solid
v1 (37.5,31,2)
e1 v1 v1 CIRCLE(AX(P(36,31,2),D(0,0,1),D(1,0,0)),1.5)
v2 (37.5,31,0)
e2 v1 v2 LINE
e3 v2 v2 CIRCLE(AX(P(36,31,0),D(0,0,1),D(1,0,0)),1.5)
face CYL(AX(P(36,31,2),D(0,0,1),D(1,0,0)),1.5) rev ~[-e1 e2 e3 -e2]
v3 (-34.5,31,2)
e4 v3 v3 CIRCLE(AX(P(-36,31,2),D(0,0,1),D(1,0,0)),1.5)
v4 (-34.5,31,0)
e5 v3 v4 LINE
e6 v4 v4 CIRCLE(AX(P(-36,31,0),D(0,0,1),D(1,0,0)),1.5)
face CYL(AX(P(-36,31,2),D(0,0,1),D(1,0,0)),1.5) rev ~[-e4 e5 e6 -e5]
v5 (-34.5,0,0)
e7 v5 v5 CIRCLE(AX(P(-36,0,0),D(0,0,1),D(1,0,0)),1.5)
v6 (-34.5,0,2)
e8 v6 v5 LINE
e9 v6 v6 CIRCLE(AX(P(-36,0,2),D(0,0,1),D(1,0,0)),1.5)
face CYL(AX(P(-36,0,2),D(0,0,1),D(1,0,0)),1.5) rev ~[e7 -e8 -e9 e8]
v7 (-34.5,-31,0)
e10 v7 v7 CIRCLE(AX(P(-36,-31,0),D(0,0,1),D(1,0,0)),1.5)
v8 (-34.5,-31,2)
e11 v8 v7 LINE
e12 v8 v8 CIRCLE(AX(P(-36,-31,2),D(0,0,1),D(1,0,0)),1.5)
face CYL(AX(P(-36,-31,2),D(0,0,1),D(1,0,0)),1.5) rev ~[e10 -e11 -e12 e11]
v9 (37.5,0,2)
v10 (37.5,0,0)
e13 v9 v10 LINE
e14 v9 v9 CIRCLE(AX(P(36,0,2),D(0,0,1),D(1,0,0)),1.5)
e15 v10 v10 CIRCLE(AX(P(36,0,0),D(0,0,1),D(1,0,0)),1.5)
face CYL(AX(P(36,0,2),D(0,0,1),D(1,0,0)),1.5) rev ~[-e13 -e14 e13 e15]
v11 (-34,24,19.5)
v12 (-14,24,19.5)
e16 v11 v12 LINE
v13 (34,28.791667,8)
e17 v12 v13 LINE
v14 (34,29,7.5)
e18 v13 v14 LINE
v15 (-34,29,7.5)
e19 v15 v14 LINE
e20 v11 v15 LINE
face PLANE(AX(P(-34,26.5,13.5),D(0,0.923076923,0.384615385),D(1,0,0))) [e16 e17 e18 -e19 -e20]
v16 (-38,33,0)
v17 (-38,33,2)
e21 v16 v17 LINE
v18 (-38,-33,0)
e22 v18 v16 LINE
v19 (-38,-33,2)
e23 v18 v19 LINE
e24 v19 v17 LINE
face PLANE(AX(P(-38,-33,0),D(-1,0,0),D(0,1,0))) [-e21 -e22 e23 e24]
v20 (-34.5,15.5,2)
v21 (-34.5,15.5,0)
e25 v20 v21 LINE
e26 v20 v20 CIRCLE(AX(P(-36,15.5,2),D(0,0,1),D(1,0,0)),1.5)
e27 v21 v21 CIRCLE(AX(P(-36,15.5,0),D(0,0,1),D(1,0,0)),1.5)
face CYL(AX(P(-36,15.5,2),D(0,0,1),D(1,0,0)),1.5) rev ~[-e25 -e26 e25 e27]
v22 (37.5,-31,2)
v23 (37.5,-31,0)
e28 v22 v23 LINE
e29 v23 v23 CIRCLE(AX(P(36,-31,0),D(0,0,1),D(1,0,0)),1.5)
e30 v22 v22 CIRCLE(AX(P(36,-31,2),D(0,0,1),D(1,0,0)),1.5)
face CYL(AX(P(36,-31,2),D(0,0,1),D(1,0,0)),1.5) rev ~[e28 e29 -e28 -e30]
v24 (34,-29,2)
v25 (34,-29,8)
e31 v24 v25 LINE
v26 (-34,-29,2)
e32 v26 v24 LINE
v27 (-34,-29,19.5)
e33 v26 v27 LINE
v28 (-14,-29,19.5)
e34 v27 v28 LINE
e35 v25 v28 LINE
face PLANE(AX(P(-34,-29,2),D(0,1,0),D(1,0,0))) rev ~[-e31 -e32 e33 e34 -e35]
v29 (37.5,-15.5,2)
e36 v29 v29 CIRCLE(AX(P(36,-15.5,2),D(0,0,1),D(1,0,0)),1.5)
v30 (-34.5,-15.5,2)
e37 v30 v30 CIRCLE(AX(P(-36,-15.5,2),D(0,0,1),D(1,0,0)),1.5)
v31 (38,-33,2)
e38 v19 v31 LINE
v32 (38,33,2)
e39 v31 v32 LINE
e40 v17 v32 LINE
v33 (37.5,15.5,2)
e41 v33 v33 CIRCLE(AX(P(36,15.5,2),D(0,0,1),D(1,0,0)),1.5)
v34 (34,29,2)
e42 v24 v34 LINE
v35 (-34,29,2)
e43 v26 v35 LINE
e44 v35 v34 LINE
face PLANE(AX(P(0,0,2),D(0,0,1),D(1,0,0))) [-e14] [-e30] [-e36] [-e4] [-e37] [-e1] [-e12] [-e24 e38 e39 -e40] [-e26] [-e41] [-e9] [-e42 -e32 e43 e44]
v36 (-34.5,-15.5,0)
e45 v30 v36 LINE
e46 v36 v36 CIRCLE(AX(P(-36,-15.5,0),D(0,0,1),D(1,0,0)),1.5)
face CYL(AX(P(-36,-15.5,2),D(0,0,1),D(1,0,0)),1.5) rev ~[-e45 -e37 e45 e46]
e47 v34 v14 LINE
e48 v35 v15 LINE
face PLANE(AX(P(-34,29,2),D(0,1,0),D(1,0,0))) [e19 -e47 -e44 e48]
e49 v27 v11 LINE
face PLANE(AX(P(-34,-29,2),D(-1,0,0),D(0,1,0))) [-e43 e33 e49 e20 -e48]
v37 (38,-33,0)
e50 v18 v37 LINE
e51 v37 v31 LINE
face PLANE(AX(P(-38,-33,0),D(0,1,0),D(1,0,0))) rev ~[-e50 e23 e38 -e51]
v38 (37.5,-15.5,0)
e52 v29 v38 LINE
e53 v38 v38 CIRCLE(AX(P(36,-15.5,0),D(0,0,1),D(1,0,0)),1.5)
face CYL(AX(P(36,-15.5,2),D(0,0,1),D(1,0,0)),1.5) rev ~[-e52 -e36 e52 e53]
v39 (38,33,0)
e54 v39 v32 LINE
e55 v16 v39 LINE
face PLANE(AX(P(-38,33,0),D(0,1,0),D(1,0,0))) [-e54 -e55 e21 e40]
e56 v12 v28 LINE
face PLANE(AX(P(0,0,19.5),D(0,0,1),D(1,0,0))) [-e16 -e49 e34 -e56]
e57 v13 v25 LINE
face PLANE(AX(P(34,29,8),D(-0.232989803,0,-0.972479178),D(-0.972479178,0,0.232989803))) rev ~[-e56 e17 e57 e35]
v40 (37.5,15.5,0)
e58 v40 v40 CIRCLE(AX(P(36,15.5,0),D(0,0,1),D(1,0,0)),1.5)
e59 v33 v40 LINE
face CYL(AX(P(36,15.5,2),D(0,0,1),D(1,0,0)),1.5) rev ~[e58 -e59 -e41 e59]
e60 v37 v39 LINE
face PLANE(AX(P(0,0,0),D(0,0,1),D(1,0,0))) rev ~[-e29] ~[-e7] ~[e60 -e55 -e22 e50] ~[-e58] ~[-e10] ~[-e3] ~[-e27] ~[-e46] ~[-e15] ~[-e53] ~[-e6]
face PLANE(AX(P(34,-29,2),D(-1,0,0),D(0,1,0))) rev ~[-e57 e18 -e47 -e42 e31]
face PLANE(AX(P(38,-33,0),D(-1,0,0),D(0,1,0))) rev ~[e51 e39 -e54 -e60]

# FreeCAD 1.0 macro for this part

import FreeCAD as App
import Part
import Sketcher

V = App.Vector


def edges_at(feature, points):
    """Names of the edges that pass closest to the given points."""
    edges = feature.Shape.Edges
    near = lambda p: min(range(len(edges)), key=lambda i: edges[i].distToShape(Part.Vertex(*p))[0])
    return sorted({f"Edge{near(p) + 1}" for p in points})


def add_polygon(sketch, points):
    """Adds a closed chain of lines whose ends are joined by coincident constraints."""
    first, n = sketch.GeometryCount, len(points)
    for a, b in zip(points, points[1:] + points[:1]):
        sketch.addGeometry(Part.LineSegment(App.Vector(*a, 0), App.Vector(*b, 0)), False)
    for i in range(n):
        sketch.addConstraint(Sketcher.Constraint("Coincident", first + i, 2, first + (i + 1) % n, 1))

doc = App.newDocument("Part")
body = doc.addObject("PartDesign::Body", "Body")

# Sketch on XY plane
sketch1 = body.newObject("Sketcher::SketchObject", "Sketch")
sketch1.AttachmentSupport = (doc.getObject("XY_Plane"), [""])
sketch1.MapMode = "FlatFace"
add_polygon(sketch1, [(-38, 33), (-38, -33), (38, -33), (38, 33)])  # lines 0-3
sketch1.addConstraint([
    Sketcher.Constraint("Vertical", 0),
    Sketcher.Constraint("Horizontal", 1),
    Sketcher.Constraint("Vertical", 2),
    Sketcher.Constraint("Horizontal", 3),
    Sketcher.Constraint("Symmetric", 0, 2, 2, 2, -1, 1),
    Sketcher.Constraint("DistanceX", 1, 1, 1, 2, 76.0),
    Sketcher.Constraint("DistanceY", 0, 2, 0, 1, 66.0),
])
pad1 = body.newObject("PartDesign::Pad", "Pad")
pad1.Profile = sketch1
pad1.Length = 2

# Sketch on XY plane
sketch2 = body.newObject("Sketcher::SketchObject", "Sketch001")
sketch2.AttachmentSupport = (doc.getObject("XY_Plane"), [""])
sketch2.MapMode = "FlatFace"
sketch2.AttachmentOffset = App.Placement(V(0, 0, 2), App.Rotation())
add_polygon(sketch2, [(-34, 29), (-34, -29), (34, -29), (34, 29)])  # lines 0-3
sketch2.addConstraint([
    Sketcher.Constraint("Vertical", 0),
    Sketcher.Constraint("Horizontal", 1),
    Sketcher.Constraint("Vertical", 2),
    Sketcher.Constraint("Horizontal", 3),
    Sketcher.Constraint("Symmetric", 0, 2, 2, 2, -1, 1),
    Sketcher.Constraint("DistanceX", 1, 1, 1, 2, 68.0),
    Sketcher.Constraint("DistanceY", 0, 2, 0, 1, 58.0),
])
pad2 = body.newObject("PartDesign::Pad", "Pad001")
pad2.Profile = sketch2
pad2.Length = 17.5

# Sketch on XZ plane
sketch3 = body.newObject("Sketcher::SketchObject", "Sketch002")
sketch3.AttachmentSupport = (doc.getObject("XZ_Plane"), [""])
sketch3.MapMode = "FlatFace"
sketch3.AttachmentOffset = App.Placement(V(0, 0, -29), App.Rotation())
add_polygon(sketch3, [(-14, 20), (34, 20), (34, 8)])  # lines 0-2
sketch3.addConstraint([
    Sketcher.Constraint("Horizontal", 0),
    Sketcher.Constraint("Vertical", 1),
    Sketcher.Constraint("DistanceX", 0, 1, 0, 2, 48.0),
    Sketcher.Constraint("DistanceY", 1, 2, 1, 1, 11.5),
    Sketcher.Constraint("DistanceX", -1, 1, 0, 2, 34.0),
    Sketcher.Constraint("DistanceY", -1, 1, 1, 2, 8.0),
])
pocket1 = body.newObject("PartDesign::Pocket", "Pocket")
pocket1.Profile = sketch3
pocket1.Length = 75
pocket1.Reversed = True
doc.recompute()

chamfer = body.newObject("PartDesign::Chamfer", "Chamfer")
chamfer.Base = (pocket1, edges_at(pocket1, [(-24, 29, 19.5)]))
chamfer.ChamferType = "Two distances"
chamfer.Size = 5
chamfer.Size2 = 12
chamfer.FlipDirection = True

# Sketch on XY plane
sketch4 = body.newObject("Sketcher::SketchObject", "Sketch003")
sketch4.AttachmentSupport = (doc.getObject("XY_Plane"), [""])
sketch4.MapMode = "FlatFace"
sketch4.AttachmentOffset = App.Placement(V(0, 0, 2), App.Rotation())
sketch4.addGeometry([
    Part.Circle(V(-36, 31, 0), V(0, 0, 1), 1.5),  # 0
    Part.Circle(V(-36, 0, 0), V(0, 0, 1), 1.5),  # 1
    Part.Circle(V(-36, -31, 0), V(0, 0, 1), 1.5),  # 2
    Part.Circle(V(36, 31, 0), V(0, 0, 1), 1.5),  # 3
    Part.Circle(V(36, 0, 0), V(0, 0, 1), 1.5),  # 4
    Part.Circle(V(36, -31, 0), V(0, 0, 1), 1.5),  # 5
    Part.Circle(V(-36, 15.5, 0), V(0, 0, 1), 1.5),  # 6
    Part.Circle(V(-36, -15.5, 0), V(0, 0, 1), 1.5),  # 7
    Part.Circle(V(36, 15.5, 0), V(0, 0, 1), 1.5),  # 8
    Part.Circle(V(36, -15.5, 0), V(0, 0, 1), 1.5),  # 9
], False)
sketch4.addConstraint([
    Sketcher.Constraint("Equal", 0, 1),
    Sketcher.Constraint("Equal", 1, 2),
    Sketcher.Constraint("Equal", 2, 3),
    Sketcher.Constraint("Equal", 3, 4),
    Sketcher.Constraint("Equal", 4, 5),
    Sketcher.Constraint("Equal", 5, 6),
    Sketcher.Constraint("Equal", 6, 7),
    Sketcher.Constraint("Equal", 7, 8),
    Sketcher.Constraint("Equal", 8, 9),
    Sketcher.Constraint("Symmetric", 2, 3, 3, 3, -1, 1),
    Sketcher.Constraint("Symmetric", 1, 3, 4, 3, -1, 1),
    Sketcher.Constraint("Symmetric", 0, 3, 5, 3, -1, 1),
    Sketcher.Constraint("Symmetric", 7, 3, 8, 3, -1, 1),
    Sketcher.Constraint("Symmetric", 6, 3, 9, 3, -1, 1),
    Sketcher.Constraint("Symmetric", 0, 3, 3, 3, -2),
    Sketcher.Constraint("Symmetric", 6, 3, 8, 3, -2),
    Sketcher.Constraint("PointOnObject", 1, 3, -1),
    Sketcher.Constraint("Vertical", 0, 3, 1, 3),
    Sketcher.Constraint("Vertical", 2, 3, 6, 3),
    Sketcher.Constraint("Diameter", 0, 3.0),
    Sketcher.Constraint("DistanceX", 0, 3, -1, 1, 36.0),
    Sketcher.Constraint("DistanceY", -1, 1, 0, 3, 31.0),
    Sketcher.Constraint("DistanceY", 7, 3, 6, 3, 31.0),
])
pocket2 = body.newObject("PartDesign::Pocket", "Pocket001")
pocket2.Profile = sketch4
pocket2.Length = 25

doc.recompute()
